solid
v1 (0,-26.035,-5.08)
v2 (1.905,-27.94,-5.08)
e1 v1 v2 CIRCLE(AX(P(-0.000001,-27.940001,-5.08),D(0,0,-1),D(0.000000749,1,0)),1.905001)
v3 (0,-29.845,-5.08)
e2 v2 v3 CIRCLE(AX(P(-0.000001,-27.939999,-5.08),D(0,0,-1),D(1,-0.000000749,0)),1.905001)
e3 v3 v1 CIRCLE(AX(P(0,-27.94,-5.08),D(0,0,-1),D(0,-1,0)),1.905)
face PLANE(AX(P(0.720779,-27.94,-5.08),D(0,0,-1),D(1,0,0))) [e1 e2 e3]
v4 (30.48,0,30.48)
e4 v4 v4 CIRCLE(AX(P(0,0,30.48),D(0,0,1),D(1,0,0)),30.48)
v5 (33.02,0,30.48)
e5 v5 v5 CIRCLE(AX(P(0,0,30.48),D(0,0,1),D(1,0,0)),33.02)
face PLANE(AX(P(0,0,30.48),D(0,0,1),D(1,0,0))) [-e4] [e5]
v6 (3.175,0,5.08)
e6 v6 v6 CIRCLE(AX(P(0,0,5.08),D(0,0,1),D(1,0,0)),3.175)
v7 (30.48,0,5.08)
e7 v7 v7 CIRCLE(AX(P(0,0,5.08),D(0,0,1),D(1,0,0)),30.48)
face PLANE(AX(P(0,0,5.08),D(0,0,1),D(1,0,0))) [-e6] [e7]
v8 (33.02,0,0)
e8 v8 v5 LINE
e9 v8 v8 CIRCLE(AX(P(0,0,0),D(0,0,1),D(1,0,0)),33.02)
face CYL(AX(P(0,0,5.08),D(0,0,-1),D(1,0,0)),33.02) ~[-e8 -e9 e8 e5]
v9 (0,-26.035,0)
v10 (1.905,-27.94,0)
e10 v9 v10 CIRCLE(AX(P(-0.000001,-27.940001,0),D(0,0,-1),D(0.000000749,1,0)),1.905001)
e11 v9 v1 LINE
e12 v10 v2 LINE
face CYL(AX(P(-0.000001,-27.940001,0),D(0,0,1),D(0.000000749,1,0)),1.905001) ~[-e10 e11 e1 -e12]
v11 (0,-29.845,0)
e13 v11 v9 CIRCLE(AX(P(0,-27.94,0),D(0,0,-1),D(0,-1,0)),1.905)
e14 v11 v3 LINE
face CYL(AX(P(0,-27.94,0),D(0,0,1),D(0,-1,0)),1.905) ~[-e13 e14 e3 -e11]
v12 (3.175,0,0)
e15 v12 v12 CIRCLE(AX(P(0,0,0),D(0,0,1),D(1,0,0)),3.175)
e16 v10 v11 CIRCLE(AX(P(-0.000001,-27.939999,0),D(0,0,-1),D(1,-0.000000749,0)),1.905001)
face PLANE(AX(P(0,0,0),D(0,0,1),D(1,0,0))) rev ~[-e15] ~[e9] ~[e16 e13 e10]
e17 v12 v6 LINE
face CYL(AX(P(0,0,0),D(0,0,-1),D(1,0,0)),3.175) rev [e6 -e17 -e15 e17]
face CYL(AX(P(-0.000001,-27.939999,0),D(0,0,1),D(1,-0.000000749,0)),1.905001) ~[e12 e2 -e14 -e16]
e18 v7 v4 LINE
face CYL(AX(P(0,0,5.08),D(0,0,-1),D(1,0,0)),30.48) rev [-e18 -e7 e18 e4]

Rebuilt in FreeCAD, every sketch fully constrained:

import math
import FreeCAD as App
import Part
import Sketcher
from FreeCAD import Vector
Q = App.Units.Quantity

doc = App.newDocument("Part")
body = doc.addObject("PartDesign::Body", "Body")

# Sketch on XY plane
sketch1 = body.newObject("Sketcher::SketchObject", "Sketch")
sketch1.AttachmentSupport = (doc.getObject("XY_Plane"), [""])
sketch1.MapMode = "FlatFace"
sketch1.addGeometry(Part.Circle(Vector(0, 0, 0), Vector(0, 0, 1), 33), False)
sketch1.addGeometry(Part.Circle(Vector(0, 0, 0), Vector(0, 0, 1), 3.2), False)
sketch1.addConstraint(Sketcher.Constraint("Coincident", 0, 3, -1, 1))
sketch1.addConstraint(Sketcher.Constraint("Coincident", 1, 3, -1, 1))
sketch1.addConstraint(Sketcher.Constraint("Diameter", 0, Q("2.6 in")))
sketch1.addConstraint(Sketcher.Constraint("Diameter", 1, Q("0.25 in")))
pad1 = body.newObject("PartDesign::Pad", "Pad")
pad1.Profile = sketch1
pad1.Length = Q("0.2 in")

# Sketch on XY plane
sketch2 = body.newObject("Sketcher::SketchObject", "Sketch001")
sketch2.AttachmentSupport = (doc.getObject("XY_Plane"), [""])
sketch2.MapMode = "FlatFace"
sketch2.AttachmentOffset = App.Placement(Vector(0, 0, 0.2 * 25.4), App.Rotation())
sketch2.addGeometry(Part.Circle(Vector(0, 0, 0), Vector(0, 0, 1), 33), False)
sketch2.addGeometry(Part.Circle(Vector(0, 0, 0), Vector(0, 0, 1), 30), False)
sketch2.addConstraint(Sketcher.Constraint("Coincident", 0, 3, -1, 1))
sketch2.addConstraint(Sketcher.Constraint("Coincident", 1, 3, -1, 1))
sketch2.addConstraint(Sketcher.Constraint("Diameter", 0, Q("2.6 in")))
sketch2.addConstraint(Sketcher.Constraint("Diameter", 1, Q("2.4 in")))
pad2 = body.newObject("PartDesign::Pad", "Pad001")
pad2.Profile = sketch2
pad2.Length = Q("1 in")

# Sketch on XY plane
sketch3 = body.newObject("Sketcher::SketchObject", "Sketch002")
sketch3.AttachmentSupport = (doc.getObject("XY_Plane"), [""])
sketch3.MapMode = "FlatFace"
sketch3.addGeometry(Part.ArcOfCircle(Part.Circle(Vector(0, -27.9, 0), Vector(0, 0, 1), 1.9), math.radians(0), math.radians(90)), False)
sketch3.addGeometry(Part.ArcOfCircle(Part.Circle(Vector(0, -27.9, 0), Vector(0, 0, 1), 1.9), math.radians(-90), math.radians(0)), False)
sketch3.addGeometry(Part.ArcOfCircle(Part.Circle(Vector(0, -27.9, 0), Vector(0, 0, 1), 1.9), math.radians(90), math.radians(270)), False)
sketch3.addConstraint(Sketcher.Constraint("Tangent", 0, 1, 1, 2))
sketch3.addConstraint(Sketcher.Constraint("Tangent", 1, 1, 2, 2))
sketch3.addConstraint(Sketcher.Constraint("Tangent", 2, 1, 0, 2))
sketch3.addConstraint(Sketcher.Constraint("PointOnObject", 0, 3, -2))
sketch3.addConstraint(Sketcher.Constraint("PointOnObject", 1, 1, -2))
sketch3.addConstraint(Sketcher.Constraint("PointOnObject", 2, 1, -2))
sketch3.addConstraint(Sketcher.Constraint("Horizontal", 2, 3, 0, 1))
sketch3.addConstraint(Sketcher.Constraint("Radius", 0, Q("0.0750001 in")))
sketch3.addConstraint(Sketcher.Constraint("DistanceY", 0, 3, -1, 1, Q("1.1000001 in")))
pad3 = body.newObject("PartDesign::Pad", "Pad002")
pad3.Profile = sketch3
pad3.Length = Q("0.2 in")
pad3.Reversed = True

doc.recompute()
